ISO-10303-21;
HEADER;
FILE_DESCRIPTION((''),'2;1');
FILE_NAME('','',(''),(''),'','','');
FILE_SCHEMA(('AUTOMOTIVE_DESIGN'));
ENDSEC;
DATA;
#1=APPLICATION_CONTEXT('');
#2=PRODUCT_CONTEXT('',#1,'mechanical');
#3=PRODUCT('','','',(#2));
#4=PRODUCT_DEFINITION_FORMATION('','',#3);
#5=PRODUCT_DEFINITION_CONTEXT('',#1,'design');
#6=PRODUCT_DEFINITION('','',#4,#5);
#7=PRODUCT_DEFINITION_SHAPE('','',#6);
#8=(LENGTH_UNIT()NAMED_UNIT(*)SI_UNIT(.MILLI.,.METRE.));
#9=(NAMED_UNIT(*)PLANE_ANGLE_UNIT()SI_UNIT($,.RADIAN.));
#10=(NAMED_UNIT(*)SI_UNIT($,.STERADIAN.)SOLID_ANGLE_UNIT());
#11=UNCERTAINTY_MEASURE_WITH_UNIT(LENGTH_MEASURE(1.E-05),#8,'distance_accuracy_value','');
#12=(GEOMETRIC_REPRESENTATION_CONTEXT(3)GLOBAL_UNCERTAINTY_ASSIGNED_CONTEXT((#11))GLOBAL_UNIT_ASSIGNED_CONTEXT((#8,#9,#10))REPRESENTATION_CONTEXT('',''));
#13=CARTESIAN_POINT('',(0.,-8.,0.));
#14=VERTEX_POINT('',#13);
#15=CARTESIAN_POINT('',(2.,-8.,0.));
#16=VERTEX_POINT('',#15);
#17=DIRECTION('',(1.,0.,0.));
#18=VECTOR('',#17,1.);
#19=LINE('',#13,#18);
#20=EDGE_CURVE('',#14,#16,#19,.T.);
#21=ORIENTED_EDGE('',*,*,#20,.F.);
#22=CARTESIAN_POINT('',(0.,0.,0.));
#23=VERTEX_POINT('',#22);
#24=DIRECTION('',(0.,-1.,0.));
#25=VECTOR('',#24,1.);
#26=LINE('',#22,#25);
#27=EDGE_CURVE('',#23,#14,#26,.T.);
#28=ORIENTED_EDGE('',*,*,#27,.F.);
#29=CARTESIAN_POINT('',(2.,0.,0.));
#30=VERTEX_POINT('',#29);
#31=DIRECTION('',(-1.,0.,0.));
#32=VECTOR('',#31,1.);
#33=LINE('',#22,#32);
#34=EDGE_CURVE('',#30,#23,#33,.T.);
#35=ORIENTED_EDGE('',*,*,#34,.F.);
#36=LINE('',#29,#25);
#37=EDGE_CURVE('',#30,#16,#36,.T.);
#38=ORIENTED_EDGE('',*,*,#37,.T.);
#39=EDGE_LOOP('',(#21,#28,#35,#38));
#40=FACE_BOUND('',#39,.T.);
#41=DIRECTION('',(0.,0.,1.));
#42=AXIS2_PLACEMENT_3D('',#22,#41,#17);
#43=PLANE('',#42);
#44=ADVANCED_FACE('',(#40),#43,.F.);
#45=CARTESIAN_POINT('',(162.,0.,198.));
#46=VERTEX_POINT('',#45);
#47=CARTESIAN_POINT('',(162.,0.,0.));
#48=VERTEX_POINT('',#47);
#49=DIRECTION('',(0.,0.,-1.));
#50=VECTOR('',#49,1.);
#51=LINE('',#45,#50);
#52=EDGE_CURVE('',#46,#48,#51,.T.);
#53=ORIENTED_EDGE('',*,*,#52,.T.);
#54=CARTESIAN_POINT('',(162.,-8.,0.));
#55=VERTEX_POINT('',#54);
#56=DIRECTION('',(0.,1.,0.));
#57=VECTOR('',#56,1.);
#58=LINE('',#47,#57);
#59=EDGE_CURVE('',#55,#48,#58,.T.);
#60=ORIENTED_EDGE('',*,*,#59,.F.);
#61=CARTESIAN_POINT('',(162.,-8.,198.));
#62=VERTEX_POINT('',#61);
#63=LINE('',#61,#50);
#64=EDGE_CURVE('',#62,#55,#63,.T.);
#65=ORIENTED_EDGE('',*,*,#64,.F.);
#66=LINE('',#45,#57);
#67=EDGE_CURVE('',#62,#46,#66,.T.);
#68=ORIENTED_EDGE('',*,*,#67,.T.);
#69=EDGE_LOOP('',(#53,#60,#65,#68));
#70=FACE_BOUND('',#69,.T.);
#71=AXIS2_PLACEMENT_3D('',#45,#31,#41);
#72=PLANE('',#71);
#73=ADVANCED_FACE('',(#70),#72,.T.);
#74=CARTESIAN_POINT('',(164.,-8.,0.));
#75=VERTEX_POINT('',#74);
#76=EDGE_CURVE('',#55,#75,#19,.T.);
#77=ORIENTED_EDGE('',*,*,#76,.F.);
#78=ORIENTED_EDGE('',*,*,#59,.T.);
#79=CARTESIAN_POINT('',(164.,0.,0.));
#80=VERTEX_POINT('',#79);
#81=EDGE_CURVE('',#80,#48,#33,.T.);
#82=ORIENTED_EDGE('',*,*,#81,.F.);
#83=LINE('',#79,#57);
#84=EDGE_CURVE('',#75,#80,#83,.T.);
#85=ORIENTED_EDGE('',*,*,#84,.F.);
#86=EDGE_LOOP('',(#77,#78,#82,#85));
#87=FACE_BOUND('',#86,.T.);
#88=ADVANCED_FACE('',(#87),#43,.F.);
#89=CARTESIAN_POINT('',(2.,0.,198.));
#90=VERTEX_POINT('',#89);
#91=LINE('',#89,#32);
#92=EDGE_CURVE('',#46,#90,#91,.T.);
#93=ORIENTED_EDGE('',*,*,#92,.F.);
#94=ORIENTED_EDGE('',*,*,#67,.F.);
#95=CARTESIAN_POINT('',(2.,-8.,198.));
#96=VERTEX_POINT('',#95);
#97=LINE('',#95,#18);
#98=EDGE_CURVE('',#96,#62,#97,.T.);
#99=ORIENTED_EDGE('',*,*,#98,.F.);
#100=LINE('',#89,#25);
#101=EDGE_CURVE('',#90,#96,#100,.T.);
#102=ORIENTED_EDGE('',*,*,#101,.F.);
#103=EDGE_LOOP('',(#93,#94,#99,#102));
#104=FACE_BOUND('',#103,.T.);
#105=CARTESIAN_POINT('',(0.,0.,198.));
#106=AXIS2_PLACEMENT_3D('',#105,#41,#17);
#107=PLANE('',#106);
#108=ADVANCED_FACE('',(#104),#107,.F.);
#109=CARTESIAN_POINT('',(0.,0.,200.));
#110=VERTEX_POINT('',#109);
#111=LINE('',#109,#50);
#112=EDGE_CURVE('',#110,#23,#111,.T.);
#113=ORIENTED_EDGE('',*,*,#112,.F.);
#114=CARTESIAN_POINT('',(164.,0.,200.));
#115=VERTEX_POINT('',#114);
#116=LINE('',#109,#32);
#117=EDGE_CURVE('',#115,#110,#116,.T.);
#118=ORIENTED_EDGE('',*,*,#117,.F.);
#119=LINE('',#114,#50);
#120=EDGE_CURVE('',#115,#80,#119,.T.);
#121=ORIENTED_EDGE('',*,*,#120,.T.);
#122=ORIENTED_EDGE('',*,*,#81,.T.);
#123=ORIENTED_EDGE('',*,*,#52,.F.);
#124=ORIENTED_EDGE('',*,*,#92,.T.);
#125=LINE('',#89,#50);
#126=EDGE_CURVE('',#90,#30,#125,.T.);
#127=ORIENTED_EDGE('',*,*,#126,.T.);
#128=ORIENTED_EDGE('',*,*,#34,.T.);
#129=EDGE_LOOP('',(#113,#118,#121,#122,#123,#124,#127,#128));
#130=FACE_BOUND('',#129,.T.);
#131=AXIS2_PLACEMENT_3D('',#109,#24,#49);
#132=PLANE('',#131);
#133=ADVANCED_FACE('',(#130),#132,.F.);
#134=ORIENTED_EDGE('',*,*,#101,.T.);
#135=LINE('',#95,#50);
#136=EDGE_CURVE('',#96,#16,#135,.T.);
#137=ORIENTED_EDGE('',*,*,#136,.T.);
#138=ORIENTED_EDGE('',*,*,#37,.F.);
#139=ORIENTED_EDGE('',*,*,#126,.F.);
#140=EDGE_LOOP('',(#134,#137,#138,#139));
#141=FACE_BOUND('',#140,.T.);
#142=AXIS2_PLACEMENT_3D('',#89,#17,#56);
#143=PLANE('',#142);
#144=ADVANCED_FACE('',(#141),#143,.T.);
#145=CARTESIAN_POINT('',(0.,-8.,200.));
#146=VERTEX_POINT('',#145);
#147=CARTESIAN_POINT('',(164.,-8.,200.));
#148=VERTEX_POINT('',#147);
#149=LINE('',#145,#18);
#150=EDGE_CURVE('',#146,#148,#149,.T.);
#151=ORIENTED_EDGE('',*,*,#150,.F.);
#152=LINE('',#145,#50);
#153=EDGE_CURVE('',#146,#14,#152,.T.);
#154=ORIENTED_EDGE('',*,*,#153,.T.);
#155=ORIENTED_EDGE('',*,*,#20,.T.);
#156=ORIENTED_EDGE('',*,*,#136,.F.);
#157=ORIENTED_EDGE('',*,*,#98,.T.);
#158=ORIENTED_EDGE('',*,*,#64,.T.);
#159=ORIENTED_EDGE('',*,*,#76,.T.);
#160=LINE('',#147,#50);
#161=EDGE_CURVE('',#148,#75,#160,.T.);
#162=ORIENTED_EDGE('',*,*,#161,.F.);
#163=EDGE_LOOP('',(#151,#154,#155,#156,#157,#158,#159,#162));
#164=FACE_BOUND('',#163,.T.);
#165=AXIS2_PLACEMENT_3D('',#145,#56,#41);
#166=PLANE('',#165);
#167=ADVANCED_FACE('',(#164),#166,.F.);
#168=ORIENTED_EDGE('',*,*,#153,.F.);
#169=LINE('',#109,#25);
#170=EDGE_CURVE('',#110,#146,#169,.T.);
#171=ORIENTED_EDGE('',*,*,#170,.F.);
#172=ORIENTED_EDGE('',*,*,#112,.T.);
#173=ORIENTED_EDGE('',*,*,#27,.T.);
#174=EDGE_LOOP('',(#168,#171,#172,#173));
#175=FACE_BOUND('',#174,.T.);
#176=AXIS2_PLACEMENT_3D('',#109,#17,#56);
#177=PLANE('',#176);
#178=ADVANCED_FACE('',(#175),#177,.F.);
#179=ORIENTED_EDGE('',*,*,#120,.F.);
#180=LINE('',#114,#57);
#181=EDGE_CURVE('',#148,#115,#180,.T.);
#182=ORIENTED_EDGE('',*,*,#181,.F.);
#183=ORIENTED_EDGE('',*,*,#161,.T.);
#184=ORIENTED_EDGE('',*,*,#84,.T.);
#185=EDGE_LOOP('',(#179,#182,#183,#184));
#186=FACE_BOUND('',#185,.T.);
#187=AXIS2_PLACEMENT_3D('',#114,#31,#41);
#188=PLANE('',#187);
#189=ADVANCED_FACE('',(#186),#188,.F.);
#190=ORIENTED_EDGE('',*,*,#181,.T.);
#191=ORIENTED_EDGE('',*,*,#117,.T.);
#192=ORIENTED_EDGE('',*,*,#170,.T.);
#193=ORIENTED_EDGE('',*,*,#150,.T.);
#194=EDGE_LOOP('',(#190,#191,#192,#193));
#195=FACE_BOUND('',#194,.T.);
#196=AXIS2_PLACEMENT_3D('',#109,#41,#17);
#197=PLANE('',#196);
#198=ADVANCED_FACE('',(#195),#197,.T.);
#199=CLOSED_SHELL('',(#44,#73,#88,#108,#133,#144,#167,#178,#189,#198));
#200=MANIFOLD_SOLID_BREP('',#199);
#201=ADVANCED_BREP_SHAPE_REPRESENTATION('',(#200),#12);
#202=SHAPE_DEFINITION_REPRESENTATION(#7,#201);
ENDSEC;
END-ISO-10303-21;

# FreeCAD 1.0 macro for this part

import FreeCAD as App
import Part
import Sketcher

V = App.Vector
Q = App.Units.Quantity

doc = App.newDocument("Part")
body = doc.addObject("PartDesign::Body", "Body")

# Sketch on XY plane
sketch1 = body.newObject("Sketcher::SketchObject", "Sketch")
sketch1.AttachmentSupport = (doc.getObject("XY_Plane"), [""])
sketch1.MapMode = "FlatFace"
sketch1.addGeometry([
    Part.LineSegment(V(0, 0, 0), V(0, -8, 0)),
    Part.LineSegment(V(0, -8, 0), V(164, -8, 0)),
    Part.LineSegment(V(164, -8, 0), V(164, 0, 0)),
    Part.LineSegment(V(164, 0, 0), V(0, 0, 0)),
], False)
sketch1.addConstraint([
    Sketcher.Constraint("Coincident", 0, 2, 1, 1),
    Sketcher.Constraint("Coincident", 1, 2, 2, 1),
    Sketcher.Constraint("Coincident", 2, 2, 3, 1),
    Sketcher.Constraint("Coincident", 3, 2, 0, 1),
    Sketcher.Constraint("Vertical", 0),
    Sketcher.Constraint("Horizontal", 1),
    Sketcher.Constraint("Vertical", 2),
    Sketcher.Constraint("Horizontal", 3),
    Sketcher.Constraint("Coincident", 3, 2, -1, 1),
    Sketcher.Constraint("DistanceX", 1, 1, 1, 2, Q("164 mm")),
    Sketcher.Constraint("DistanceY", 0, 2, 0, 1, Q("8 mm")),
])
pad1 = body.newObject("PartDesign::Pad", "Pad")
pad1.Profile = sketch1
pad1.Length = 200

# Sketch on XY plane
sketch2 = body.newObject("Sketcher::SketchObject", "Sketch001")
sketch2.AttachmentSupport = (doc.getObject("XY_Plane"), [""])
sketch2.MapMode = "FlatFace"
sketch2.addGeometry([
    Part.LineSegment(V(2, 0, 0), V(2, -8, 0)),
    Part.LineSegment(V(2, -8, 0), V(162, -8, 0)),
    Part.LineSegment(V(162, -8, 0), V(162, 0, 0)),
    Part.LineSegment(V(162, 0, 0), V(2, 0, 0)),
], False)
sketch2.addConstraint([
    Sketcher.Constraint("Coincident", 0, 2, 1, 1),
    Sketcher.Constraint("Coincident", 1, 2, 2, 1),
    Sketcher.Constraint("Coincident", 2, 2, 3, 1),
    Sketcher.Constraint("Coincident", 3, 2, 0, 1),
    Sketcher.Constraint("Vertical", 0),
    Sketcher.Constraint("Horizontal", 1),
    Sketcher.Constraint("Vertical", 2),
    Sketcher.Constraint("Horizontal", 3),
    Sketcher.Constraint("PointOnObject", 2, 2, -1),
    Sketcher.Constraint("DistanceX", 1, 1, 1, 2, Q("160 mm")),
    Sketcher.Constraint("DistanceY", 0, 2, 0, 1, Q("8 mm")),
    Sketcher.Constraint("DistanceX", -1, 1, 0, 2, Q("2 mm")),
])
pocket1 = body.newObject("PartDesign::Pocket", "Pocket")
pocket1.Profile = sketch2
pocket1.Length = 198
pocket1.Reversed = True

doc.recompute()
